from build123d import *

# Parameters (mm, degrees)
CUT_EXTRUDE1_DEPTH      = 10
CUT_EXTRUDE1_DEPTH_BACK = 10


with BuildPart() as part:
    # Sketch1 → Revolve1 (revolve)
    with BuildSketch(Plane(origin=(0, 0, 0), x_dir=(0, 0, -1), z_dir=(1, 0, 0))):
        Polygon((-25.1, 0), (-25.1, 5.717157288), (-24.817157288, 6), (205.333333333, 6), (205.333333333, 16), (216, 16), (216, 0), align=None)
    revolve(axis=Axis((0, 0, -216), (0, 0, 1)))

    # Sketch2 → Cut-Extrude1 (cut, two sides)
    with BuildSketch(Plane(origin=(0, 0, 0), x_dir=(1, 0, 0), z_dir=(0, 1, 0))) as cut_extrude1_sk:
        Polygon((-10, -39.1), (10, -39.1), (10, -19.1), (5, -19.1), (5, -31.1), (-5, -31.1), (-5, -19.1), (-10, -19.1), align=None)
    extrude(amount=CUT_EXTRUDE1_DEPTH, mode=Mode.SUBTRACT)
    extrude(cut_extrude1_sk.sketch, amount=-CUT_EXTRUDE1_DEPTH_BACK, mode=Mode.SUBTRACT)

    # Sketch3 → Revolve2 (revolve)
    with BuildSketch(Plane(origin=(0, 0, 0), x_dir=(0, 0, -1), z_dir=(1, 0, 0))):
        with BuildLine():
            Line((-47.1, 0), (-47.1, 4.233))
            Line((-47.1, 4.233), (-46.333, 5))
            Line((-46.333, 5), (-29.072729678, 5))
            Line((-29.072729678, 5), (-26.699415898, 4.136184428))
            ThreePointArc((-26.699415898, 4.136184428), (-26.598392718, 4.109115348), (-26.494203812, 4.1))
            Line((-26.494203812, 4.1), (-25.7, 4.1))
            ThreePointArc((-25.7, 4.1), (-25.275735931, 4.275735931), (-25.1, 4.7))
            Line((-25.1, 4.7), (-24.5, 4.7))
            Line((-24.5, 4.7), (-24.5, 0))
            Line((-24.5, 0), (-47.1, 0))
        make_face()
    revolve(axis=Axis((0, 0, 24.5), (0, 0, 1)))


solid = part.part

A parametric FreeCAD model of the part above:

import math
import FreeCAD as App
import Part
import Sketcher
from FreeCAD import Vector
Q = App.Units.Quantity


def add_polygon(sketch, points):
    """Adds a closed chain of lines whose ends are joined by coincident constraints."""
    first, n = sketch.GeometryCount, len(points)
    for a, b in zip(points, points[1:] + points[:1]):
        sketch.addGeometry(Part.LineSegment(App.Vector(*a, 0), App.Vector(*b, 0)), False)
    for i in range(n):
        sketch.addConstraint(Sketcher.Constraint("Coincident", first + i, 2, first + (i + 1) % n, 1))

doc = App.newDocument("Part")
body = doc.addObject("PartDesign::Body", "Body")

# Sketch on YZ plane
sketch1 = body.newObject("Sketcher::SketchObject", "Sketch")
sketch1.AttachmentSupport = (doc.getObject("YZ_Plane"), [""])
sketch1.MapMode = "FlatFace"
add_polygon(sketch1, [(5.72, 25.1), (0, 25.1), (0, -216), (16, -216), (16, -205.33), (6, -205.33), (6, 24.82)])  # lines 0-6
sketch1.addConstraint(Sketcher.Constraint("Horizontal", 0))
sketch1.addConstraint(Sketcher.Constraint("Vertical", 1))
sketch1.addConstraint(Sketcher.Constraint("Horizontal", 2))
sketch1.addConstraint(Sketcher.Constraint("Vertical", 3))
sketch1.addConstraint(Sketcher.Constraint("Horizontal", 4))
sketch1.addConstraint(Sketcher.Constraint("Vertical", 5))
sketch1.addConstraint(Sketcher.Constraint("PointOnObject", 0, 2, -2))
sketch1.addConstraint(Sketcher.Constraint("DistanceX", 2, 1, 2, 2, 16.0))
sketch1.addConstraint(Sketcher.Constraint("DistanceX", 4, 2, 4, 1, 10.0))
sketch1.addConstraint(Sketcher.Constraint("Angle", 6, Q("135 deg")))
sketch1.addConstraint(Sketcher.Constraint("DistanceY", 1, 2, 1, 1, 241.1))
sketch1.addConstraint(Sketcher.Constraint("DistanceY", 1, 2, -1, 1, 216.0))
sketch1.addConstraint(Sketcher.Constraint("Distance", 6, 0.4))
sketch1.addConstraint(Sketcher.Constraint("DistanceY", 5, 1, 5, 2, 230.150491))
revolution = body.newObject("PartDesign::Revolution", "Revolution")
revolution.Profile = sketch1
revolution.ReferenceAxis = (sketch1, ["V_Axis"])
revolution.Angle = 360

# Sketch on XZ plane
sketch2 = body.newObject("Sketcher::SketchObject", "Sketch001")
sketch2.AttachmentSupport = (doc.getObject("XZ_Plane"), [""])
sketch2.MapMode = "FlatFace"
add_polygon(sketch2, [(-10, 39), (10, 39), (10, 19), (5, 19), (5, 31), (-5, 31), (-5, 19), (-10, 19)])  # lines 0-7
sketch2.addConstraint(Sketcher.Constraint("Horizontal", 0))
sketch2.addConstraint(Sketcher.Constraint("Vertical", 1))
sketch2.addConstraint(Sketcher.Constraint("Horizontal", 2))
sketch2.addConstraint(Sketcher.Constraint("Vertical", 3))
sketch2.addConstraint(Sketcher.Constraint("Horizontal", 4))
sketch2.addConstraint(Sketcher.Constraint("Vertical", 5))
sketch2.addConstraint(Sketcher.Constraint("Horizontal", 6))
sketch2.addConstraint(Sketcher.Constraint("Vertical", 7))
sketch2.addConstraint(Sketcher.Constraint("Symmetric", 2, 2, 5, 2, -2))
sketch2.addConstraint(Sketcher.Constraint("Equal", 2, 6))
sketch2.addConstraint(Sketcher.Constraint("Equal", 0, 1))
sketch2.addConstraint(Sketcher.Constraint("DistanceX", 0, 1, 0, 2, 20.0))
sketch2.addConstraint(Sketcher.Constraint("DistanceX", 2, 2, 2, 1, 5.0))
sketch2.addConstraint(Sketcher.Constraint("DistanceY", 3, 1, 3, 2, 12.0))
sketch2.addConstraint(Sketcher.Constraint("DistanceY", -1, 1, 0, 2, 39.1))
pocket1 = body.newObject("PartDesign::Pocket", "Pocket")
pocket1.Profile = sketch2
pocket1.Type = "ThroughAll"
pocket1.Midplane = True

# Sketch on YZ plane
sketch3 = body.newObject("Sketcher::SketchObject", "Sketch002")
sketch3.AttachmentSupport = (doc.getObject("YZ_Plane"), [""])
sketch3.MapMode = "FlatFace"
sketch3.addGeometry(Part.LineSegment(Vector(4.23, 47.1, 0), Vector(0, 47.1, 0)), False)
sketch3.addGeometry(Part.LineSegment(Vector(0, 47.1, 0), Vector(0, 24.5, 0)), False)
sketch3.addGeometry(Part.LineSegment(Vector(0, 24.5, 0), Vector(4.7, 24.5, 0)), False)
sketch3.addGeometry(Part.LineSegment(Vector(4.7, 24.5, 0), Vector(4.7, 25.1, 0)), False)
sketch3.addGeometry(Part.ArcOfCircle(Part.Circle(Vector(4.7, 25.7, 0), Vector(0, 0, 1), 0.6), math.radians(180), math.radians(270)), False)
sketch3.addGeometry(Part.LineSegment(Vector(4.1, 25.7, 0), Vector(4.1, 26.49, 0)), False)
sketch3.addGeometry(Part.ArcOfCircle(Part.Circle(Vector(4.7, 26.49, 0), Vector(0, 0, 1), 0.6), math.radians(160), math.radians(180)), False)
sketch3.addGeometry(Part.LineSegment(Vector(4.14, 26.7, 0), Vector(5, 29.07, 0)), False)
sketch3.addGeometry(Part.LineSegment(Vector(5, 29.07, 0), Vector(5, 46.33, 0)), False)
sketch3.addGeometry(Part.LineSegment(Vector(5, 46.33, 0), Vector(4.23, 47.1, 0)), False)
sketch3.addConstraint(Sketcher.Constraint("Coincident", 0, 2, 1, 1))
sketch3.addConstraint(Sketcher.Constraint("Coincident", 1, 2, 2, 1))
sketch3.addConstraint(Sketcher.Constraint("Coincident", 2, 2, 3, 1))
sketch3.addConstraint(Sketcher.Constraint("Coincident", 3, 2, 4, 2))
sketch3.addConstraint(Sketcher.Constraint("Tangent", 4, 1, 5, 1))
sketch3.addConstraint(Sketcher.Constraint("Tangent", 5, 2, 6, 2))
sketch3.addConstraint(Sketcher.Constraint("Tangent", 6, 1, 7, 1))
sketch3.addConstraint(Sketcher.Constraint("Coincident", 7, 2, 8, 1))
sketch3.addConstraint(Sketcher.Constraint("Coincident", 8, 2, 9, 1))
sketch3.addConstraint(Sketcher.Constraint("Coincident", 9, 2, 0, 1))
sketch3.addConstraint(Sketcher.Constraint("Horizontal", 0))
sketch3.addConstraint(Sketcher.Constraint("Vertical", 1))
sketch3.addConstraint(Sketcher.Constraint("Horizontal", 2))
sketch3.addConstraint(Sketcher.Constraint("Vertical", 3))
sketch3.addConstraint(Sketcher.Constraint("Vertical", 5))
sketch3.addConstraint(Sketcher.Constraint("Vertical", 8))
sketch3.addConstraint(Sketcher.Constraint("Equal", 4, 6))
sketch3.addConstraint(Sketcher.Constraint("PointOnObject", 0, 2, -2))
sketch3.addConstraint(Sketcher.Constraint("Vertical", 6, 3, 2, 2))
sketch3.addConstraint(Sketcher.Constraint("Radius", 4, 0.6))
sketch3.addConstraint(Sketcher.Constraint("Angle", 7, Q("70 deg")))
sketch3.addConstraint(Sketcher.Constraint("Angle", 9, Q("135 deg")))
sketch3.addConstraint(Sketcher.Constraint("DistanceX", 2, 1, 2, 2, 4.7))
sketch3.addConstraint(Sketcher.Constraint("DistanceY", 1, 2, 1, 1, 22.6))
sketch3.addConstraint(Sketcher.Constraint("DistanceY", 3, 1, 3, 2, 0.6))
sketch3.addConstraint(Sketcher.Constraint("DistanceX", -1, 1, 7, 2, 5.0))
sketch3.addConstraint(Sketcher.Constraint("DistanceY", -1, 1, 4, 3, 25.7))
sketch3.addConstraint(Sketcher.Constraint("DistanceX", 0, 2, 0, 1, 4.233))
sketch3.addConstraint(Sketcher.Constraint("DistanceY", 8, 1, 8, 2, 17.26027))
revolution2 = body.newObject("PartDesign::Revolution", "Revolution001")
revolution2.Profile = sketch3
revolution2.ReferenceAxis = (sketch3, ["V_Axis"])
revolution2.Angle = 360

doc.recompute()
